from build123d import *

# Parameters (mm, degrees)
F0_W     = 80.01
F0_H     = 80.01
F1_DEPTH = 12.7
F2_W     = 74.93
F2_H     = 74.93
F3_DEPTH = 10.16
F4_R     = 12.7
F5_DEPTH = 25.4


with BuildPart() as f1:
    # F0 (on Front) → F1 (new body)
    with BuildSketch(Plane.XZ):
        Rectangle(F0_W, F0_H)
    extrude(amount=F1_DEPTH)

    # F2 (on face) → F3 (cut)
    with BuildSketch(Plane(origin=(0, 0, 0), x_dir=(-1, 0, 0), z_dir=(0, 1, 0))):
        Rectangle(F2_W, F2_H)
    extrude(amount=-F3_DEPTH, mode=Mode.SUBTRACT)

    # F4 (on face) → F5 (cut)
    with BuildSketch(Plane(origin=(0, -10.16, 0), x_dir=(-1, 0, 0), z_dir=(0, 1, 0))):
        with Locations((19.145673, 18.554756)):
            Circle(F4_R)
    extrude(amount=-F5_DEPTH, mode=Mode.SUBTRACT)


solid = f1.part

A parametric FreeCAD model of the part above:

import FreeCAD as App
import Part
import Sketcher
from FreeCAD import Vector
Q = App.Units.Quantity


def add_polygon(sketch, points):
    """Adds a closed chain of lines whose ends are joined by coincident constraints."""
    first, n = sketch.GeometryCount, len(points)
    for a, b in zip(points, points[1:] + points[:1]):
        sketch.addGeometry(Part.LineSegment(App.Vector(*a, 0), App.Vector(*b, 0)), False)
    for i in range(n):
        sketch.addConstraint(Sketcher.Constraint("Coincident", first + i, 2, first + (i + 1) % n, 1))

doc = App.newDocument("Part")
body = doc.addObject("PartDesign::Body", "Body")

# Sketch on XZ plane
sketch1 = body.newObject("Sketcher::SketchObject", "Sketch")
sketch1.AttachmentSupport = (doc.getObject("XZ_Plane"), [""])
sketch1.MapMode = "FlatFace"
add_polygon(sketch1, [(-40.005, 40.005), (-40.005, -40.005), (40.005, -40.005), (40.005, 40.005)])  # lines 0-3
sketch1.addConstraint(Sketcher.Constraint("Vertical", 0))
sketch1.addConstraint(Sketcher.Constraint("Horizontal", 1))
sketch1.addConstraint(Sketcher.Constraint("Vertical", 2))
sketch1.addConstraint(Sketcher.Constraint("Horizontal", 3))
sketch1.addConstraint(Sketcher.Constraint("Symmetric", 0, 2, 2, 2, -1, 1))
sketch1.addConstraint(Sketcher.Constraint("Equal", 3, 0))
sketch1.addConstraint(Sketcher.Constraint("DistanceX", 1, 1, 1, 2, Q("3.15 in")))
pad1 = body.newObject("PartDesign::Pad", "Pad")
pad1.Profile = sketch1
pad1.Length = Q("0.5 in")

# Sketch on XZ plane
sketch2 = body.newObject("Sketcher::SketchObject", "Sketch001")
sketch2.AttachmentSupport = (doc.getObject("XZ_Plane"), [""])
sketch2.MapMode = "FlatFace"
add_polygon(sketch2, [(37.465, 37.465), (37.465, -37.465), (-37.465, -37.465), (-37.465, 37.465)])  # lines 0-3
sketch2.addConstraint(Sketcher.Constraint("Vertical", 0))
sketch2.addConstraint(Sketcher.Constraint("Horizontal", 1))
sketch2.addConstraint(Sketcher.Constraint("Vertical", 2))
sketch2.addConstraint(Sketcher.Constraint("Horizontal", 3))
sketch2.addConstraint(Sketcher.Constraint("Symmetric", 0, 2, 2, 2, -1, 1))
sketch2.addConstraint(Sketcher.Constraint("Equal", 3, 0))
sketch2.addConstraint(Sketcher.Constraint("DistanceX", 1, 2, 1, 1, Q("2.95 in")))
pocket1 = body.newObject("PartDesign::Pocket", "Pocket")
pocket1.Profile = sketch2
pocket1.Length = Q("0.4 in")
pocket1.Reversed = True

# Sketch on XZ plane
sketch3 = body.newObject("Sketcher::SketchObject", "Sketch002")
sketch3.AttachmentSupport = (doc.getObject("XZ_Plane"), [""])
sketch3.MapMode = "FlatFace"
sketch3.AttachmentOffset = App.Placement(Vector(0, 0, 0.4 * 25.4), App.Rotation())
sketch3.addGeometry(Part.Circle(Vector(-19.145673, 18.554756, 0), Vector(0, 0, 1), 12.7), False)
sketch3.addConstraint(Sketcher.Constraint("Diameter", 0, Q("1 in")))
sketch3.addConstraint(Sketcher.Constraint("DistanceX", 0, 3, -1, 1, Q("19.145673 mm")))
sketch3.addConstraint(Sketcher.Constraint("DistanceY", -1, 1, 0, 3, Q("18.554756 mm")))
pocket2 = body.newObject("PartDesign::Pocket", "Pocket001")
pocket2.Profile = sketch3
pocket2.Length = Q("1 in")
pocket2.Reversed = True

doc.recompute()
